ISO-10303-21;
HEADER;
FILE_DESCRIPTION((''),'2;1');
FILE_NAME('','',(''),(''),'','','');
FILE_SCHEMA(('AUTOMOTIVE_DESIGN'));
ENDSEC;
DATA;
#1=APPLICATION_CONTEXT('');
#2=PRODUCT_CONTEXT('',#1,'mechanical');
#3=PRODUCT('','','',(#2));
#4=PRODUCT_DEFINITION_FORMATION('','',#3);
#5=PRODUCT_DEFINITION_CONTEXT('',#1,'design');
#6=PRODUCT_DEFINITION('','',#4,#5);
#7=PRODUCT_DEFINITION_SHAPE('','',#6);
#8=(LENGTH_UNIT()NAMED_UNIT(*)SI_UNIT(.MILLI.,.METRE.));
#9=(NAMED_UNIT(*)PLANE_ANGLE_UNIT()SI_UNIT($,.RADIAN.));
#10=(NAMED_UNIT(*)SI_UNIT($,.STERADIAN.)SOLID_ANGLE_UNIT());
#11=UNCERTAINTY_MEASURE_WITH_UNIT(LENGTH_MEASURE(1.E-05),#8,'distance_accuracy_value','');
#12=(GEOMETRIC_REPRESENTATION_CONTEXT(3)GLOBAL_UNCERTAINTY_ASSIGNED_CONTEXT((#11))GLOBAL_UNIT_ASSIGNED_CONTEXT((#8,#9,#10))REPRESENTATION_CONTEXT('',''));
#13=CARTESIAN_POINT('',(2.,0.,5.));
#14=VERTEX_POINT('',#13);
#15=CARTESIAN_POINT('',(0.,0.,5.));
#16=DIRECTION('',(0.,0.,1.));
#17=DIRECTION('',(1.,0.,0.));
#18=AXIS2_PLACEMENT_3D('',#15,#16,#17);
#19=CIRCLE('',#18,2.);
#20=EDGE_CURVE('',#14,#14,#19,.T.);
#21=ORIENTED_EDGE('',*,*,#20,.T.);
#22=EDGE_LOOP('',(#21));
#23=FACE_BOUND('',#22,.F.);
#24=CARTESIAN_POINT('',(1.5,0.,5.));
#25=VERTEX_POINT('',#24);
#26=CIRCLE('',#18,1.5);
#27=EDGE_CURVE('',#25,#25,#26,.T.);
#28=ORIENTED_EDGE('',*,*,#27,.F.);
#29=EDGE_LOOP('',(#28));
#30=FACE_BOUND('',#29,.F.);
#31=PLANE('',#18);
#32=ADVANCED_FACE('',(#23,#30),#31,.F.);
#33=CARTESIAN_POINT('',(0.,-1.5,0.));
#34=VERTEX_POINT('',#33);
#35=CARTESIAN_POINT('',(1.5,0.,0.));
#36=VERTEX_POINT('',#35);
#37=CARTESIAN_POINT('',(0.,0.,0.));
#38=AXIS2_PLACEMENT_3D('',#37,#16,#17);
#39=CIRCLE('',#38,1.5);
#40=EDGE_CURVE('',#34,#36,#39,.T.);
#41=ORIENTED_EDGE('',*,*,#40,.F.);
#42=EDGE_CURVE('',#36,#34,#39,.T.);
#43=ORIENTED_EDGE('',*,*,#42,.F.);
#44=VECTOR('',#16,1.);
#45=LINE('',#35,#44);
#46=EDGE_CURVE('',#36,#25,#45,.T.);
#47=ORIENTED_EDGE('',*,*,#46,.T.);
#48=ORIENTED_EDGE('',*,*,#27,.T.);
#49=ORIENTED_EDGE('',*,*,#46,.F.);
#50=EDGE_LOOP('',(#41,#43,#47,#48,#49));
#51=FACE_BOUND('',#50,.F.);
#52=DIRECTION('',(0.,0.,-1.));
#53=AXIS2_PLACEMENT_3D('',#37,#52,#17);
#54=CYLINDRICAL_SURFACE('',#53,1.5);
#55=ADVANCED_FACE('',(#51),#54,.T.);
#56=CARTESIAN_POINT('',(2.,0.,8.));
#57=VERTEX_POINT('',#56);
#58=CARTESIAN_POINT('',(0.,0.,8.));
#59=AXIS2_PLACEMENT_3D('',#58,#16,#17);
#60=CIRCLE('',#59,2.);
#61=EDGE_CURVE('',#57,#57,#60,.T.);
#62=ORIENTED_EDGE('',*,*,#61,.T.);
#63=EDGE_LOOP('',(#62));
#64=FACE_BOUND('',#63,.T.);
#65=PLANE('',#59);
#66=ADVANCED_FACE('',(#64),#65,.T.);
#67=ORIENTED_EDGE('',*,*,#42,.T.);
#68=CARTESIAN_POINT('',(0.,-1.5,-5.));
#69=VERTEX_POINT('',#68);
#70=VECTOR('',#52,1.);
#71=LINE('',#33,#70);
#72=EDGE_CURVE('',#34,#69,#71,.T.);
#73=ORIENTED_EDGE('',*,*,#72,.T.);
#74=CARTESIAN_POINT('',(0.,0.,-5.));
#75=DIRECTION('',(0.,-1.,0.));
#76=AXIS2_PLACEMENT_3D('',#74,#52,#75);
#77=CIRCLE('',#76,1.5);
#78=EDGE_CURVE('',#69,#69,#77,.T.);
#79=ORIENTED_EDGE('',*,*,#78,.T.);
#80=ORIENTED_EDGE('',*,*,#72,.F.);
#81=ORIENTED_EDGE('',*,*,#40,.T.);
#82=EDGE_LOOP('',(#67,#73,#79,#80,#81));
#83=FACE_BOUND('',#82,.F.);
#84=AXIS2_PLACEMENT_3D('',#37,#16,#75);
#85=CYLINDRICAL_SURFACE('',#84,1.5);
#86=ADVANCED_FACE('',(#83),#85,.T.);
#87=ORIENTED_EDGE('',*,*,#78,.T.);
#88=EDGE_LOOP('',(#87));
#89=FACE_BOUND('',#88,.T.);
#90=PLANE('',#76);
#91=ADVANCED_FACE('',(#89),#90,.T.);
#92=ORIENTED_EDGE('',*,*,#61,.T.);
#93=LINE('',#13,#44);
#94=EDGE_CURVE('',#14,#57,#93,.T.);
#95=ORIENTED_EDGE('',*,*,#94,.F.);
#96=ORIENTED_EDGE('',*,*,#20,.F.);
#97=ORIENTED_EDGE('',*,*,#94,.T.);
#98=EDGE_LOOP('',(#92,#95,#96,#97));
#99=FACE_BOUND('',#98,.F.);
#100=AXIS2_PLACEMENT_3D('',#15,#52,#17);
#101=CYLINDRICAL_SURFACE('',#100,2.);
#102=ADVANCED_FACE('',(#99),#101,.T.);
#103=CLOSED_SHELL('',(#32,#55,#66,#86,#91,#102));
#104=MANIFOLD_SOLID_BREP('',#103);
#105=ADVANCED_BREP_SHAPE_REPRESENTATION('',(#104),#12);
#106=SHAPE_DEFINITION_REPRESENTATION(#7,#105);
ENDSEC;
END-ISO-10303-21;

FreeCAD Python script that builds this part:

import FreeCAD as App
import Part
import Sketcher
Q = App.Units.Quantity

doc = App.newDocument("Part")
body = doc.addObject("PartDesign::Body", "Body")

sketch1 = doc.addObject("Sketcher::SketchObject", "Sketch")
body.addObject(sketch1)
sketch1.AttachmentSupport = (doc.XY_Plane, [""])
sketch1.MapMode = "FlatFace"
sketch1.addGeometry(Part.Circle(App.Vector(0, 0, 0), App.Vector(0, 0, 1), 1.5), False)
sketch1.addConstraint(Sketcher.Constraint("Coincident", 0, 3, -1, 1))
sketch1.addConstraint(Sketcher.Constraint("Diameter", 0, Q("3 mm")))
pad1 = doc.addObject("PartDesign::Pad", "Pad")
body.addObject(pad1)
pad1.Profile = sketch1
pad1.Length = 5

sketch2 = doc.addObject("Sketcher::SketchObject", "Sketch001")
body.addObject(sketch2)
sketch2.AttachmentSupport = (doc.XY_Plane, [""])
sketch2.MapMode = "FlatFace"
sketch2.AttachmentOffset = App.Placement(App.Vector(0, 0, 5), App.Rotation())
sketch2.addGeometry(Part.Circle(App.Vector(0, 0, 0), App.Vector(0, 0, 1), 2), False)
sketch2.addConstraint(Sketcher.Constraint("Coincident", 0, 3, -1, 1))
sketch2.addConstraint(Sketcher.Constraint("Diameter", 0, Q("4 mm")))
pad2 = doc.addObject("PartDesign::Pad", "Pad001")
body.addObject(pad2)
pad2.Profile = sketch2
pad2.Length = 3

sketch3 = doc.addObject("Sketcher::SketchObject", "Sketch002")
body.addObject(sketch3)
sketch3.AttachmentSupport = (doc.XY_Plane, [""])
sketch3.MapMode = "FlatFace"
sketch3.addGeometry(Part.Circle(App.Vector(0, 0, 0), App.Vector(0, 0, 1), 1.5), False)
sketch3.addConstraint(Sketcher.Constraint("Coincident", 0, 3, -1, 1))
sketch3.addConstraint(Sketcher.Constraint("Diameter", 0, Q("3 mm")))
pad3 = doc.addObject("PartDesign::Pad", "Pad002")
body.addObject(pad3)
pad3.Profile = sketch3
pad3.Length = 5
pad3.Reversed = True

doc.recompute()
